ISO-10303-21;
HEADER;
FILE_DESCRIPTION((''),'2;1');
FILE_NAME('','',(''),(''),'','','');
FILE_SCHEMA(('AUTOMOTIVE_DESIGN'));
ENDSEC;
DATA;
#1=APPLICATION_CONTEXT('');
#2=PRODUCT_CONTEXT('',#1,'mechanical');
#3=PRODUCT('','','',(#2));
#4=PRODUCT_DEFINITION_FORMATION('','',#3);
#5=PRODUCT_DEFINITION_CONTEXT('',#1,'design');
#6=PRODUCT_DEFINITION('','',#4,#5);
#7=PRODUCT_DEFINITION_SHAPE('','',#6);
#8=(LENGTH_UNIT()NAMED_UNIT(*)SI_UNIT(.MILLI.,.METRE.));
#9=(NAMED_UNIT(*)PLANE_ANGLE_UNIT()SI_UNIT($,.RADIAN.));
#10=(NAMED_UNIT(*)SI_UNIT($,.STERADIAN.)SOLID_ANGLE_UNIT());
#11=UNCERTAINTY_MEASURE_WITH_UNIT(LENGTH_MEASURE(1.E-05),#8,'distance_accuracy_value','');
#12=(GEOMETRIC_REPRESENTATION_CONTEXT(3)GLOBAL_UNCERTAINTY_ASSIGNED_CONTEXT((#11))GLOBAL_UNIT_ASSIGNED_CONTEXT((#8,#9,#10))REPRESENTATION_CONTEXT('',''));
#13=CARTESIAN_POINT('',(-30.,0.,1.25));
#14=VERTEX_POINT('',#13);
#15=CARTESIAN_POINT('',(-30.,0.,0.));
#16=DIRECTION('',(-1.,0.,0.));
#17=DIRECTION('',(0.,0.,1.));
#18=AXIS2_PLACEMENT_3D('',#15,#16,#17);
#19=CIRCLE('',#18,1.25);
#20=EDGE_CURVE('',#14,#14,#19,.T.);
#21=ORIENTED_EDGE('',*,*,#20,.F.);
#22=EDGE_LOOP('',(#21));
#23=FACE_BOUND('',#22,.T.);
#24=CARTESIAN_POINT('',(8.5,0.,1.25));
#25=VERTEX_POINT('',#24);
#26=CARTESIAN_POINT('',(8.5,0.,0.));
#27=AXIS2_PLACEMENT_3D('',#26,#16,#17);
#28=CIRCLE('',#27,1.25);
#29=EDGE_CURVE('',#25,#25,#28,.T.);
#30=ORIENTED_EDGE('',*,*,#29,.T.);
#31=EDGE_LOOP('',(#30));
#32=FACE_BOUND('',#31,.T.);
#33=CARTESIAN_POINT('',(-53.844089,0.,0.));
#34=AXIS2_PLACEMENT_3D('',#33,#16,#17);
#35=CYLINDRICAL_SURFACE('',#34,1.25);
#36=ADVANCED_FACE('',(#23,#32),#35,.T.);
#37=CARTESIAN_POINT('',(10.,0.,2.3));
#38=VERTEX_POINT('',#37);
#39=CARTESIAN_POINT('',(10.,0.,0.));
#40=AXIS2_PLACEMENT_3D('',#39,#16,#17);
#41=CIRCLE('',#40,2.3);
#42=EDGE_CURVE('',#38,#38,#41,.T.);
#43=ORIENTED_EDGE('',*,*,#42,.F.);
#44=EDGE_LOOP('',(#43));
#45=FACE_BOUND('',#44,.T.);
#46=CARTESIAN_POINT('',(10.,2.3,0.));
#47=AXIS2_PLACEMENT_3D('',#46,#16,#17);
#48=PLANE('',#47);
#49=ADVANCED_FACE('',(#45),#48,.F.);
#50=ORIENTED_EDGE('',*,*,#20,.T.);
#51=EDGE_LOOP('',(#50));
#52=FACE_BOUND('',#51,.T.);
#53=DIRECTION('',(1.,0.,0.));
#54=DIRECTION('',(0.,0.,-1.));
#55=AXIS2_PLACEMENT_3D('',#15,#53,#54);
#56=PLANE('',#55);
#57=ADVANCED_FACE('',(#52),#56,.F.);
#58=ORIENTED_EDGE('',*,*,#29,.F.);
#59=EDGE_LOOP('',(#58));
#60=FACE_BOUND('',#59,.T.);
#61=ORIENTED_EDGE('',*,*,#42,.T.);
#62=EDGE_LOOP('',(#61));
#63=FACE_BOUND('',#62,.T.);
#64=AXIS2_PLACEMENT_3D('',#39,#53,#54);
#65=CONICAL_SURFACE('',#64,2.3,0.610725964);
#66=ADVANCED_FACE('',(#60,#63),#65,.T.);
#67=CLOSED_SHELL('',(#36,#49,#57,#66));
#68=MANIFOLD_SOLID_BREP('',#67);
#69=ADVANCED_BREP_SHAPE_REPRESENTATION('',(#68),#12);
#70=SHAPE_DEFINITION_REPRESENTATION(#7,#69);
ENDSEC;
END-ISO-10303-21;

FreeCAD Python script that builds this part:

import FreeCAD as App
import Part
import Sketcher


def add_polygon(sketch, points):
    """Adds a closed chain of lines whose ends are joined by coincident constraints."""
    first, n = sketch.GeometryCount, len(points)
    for a, b in zip(points, points[1:] + points[:1]):
        sketch.addGeometry(Part.LineSegment(App.Vector(*a, 0), App.Vector(*b, 0)), False)
    for i in range(n):
        sketch.addConstraint(Sketcher.Constraint("Coincident", first + i, 2, first + (i + 1) % n, 1))

doc = App.newDocument("Part")
params = doc.addObject("Spreadsheet::Sheet", "Params")
for row, (alias, value) in enumerate([
    ("sketch1_width", "40 mm"),
    ("sketch1_width2", "38.5 mm"),
    ("sketch1_height", "2.3 mm"),
    ("sketch1_height2", "1.25 mm"),
    ("revolution_angle", "360 deg"),
], start=1):
    params.set(f"A{row}", alias)
    params.set(f"B{row}", "=" + value)
    params.setAlias(f"B{row}", alias)

body = doc.addObject("PartDesign::Body", "Body")

# Sketch on XY plane
sketch1 = body.newObject("Sketcher::SketchObject", "Sketch")
sketch1.AttachmentSupport = (doc.getObject("XY_Plane"), [""])
sketch1.MapMode = "FlatFace"
add_polygon(sketch1, [(-30, 1.25), (-30, 0), (10, 0), (10, 2.3), (8.5, 1.25)])  # lines 0-4
sketch1.addConstraint([
    Sketcher.Constraint("Vertical", 0),
    Sketcher.Constraint("Horizontal", 1),
    Sketcher.Constraint("Vertical", 2),
    Sketcher.Constraint("Horizontal", 4),
    Sketcher.Constraint("PointOnObject", 0, 2, -1),
    Sketcher.Constraint("DistanceX", 1, 1, 1, 2, 40.0),
    Sketcher.Constraint("DistanceX", 4, 2, 4, 1, 38.5),
    Sketcher.Constraint("DistanceY", 2, 1, 2, 2, 2.3),
    Sketcher.Constraint("DistanceX", 0, 2, -1, 1, 30.0),
    Sketcher.Constraint("DistanceY", 0, 2, 0, 1, 1.25),
])
sketch1.setExpression("Constraints[10]", "Params.sketch1_width")
sketch1.setExpression("Constraints[11]", "Params.sketch1_width2")
sketch1.setExpression("Constraints[12]", "Params.sketch1_height")
sketch1.setExpression("Constraints[14]", "Params.sketch1_height2")
revolution = body.newObject("PartDesign::Revolution", "Revolution")
revolution.Profile = sketch1
revolution.ReferenceAxis = (sketch1, ["H_Axis"])
revolution.setExpression("Angle", "Params.revolution_angle")

doc.recompute()
